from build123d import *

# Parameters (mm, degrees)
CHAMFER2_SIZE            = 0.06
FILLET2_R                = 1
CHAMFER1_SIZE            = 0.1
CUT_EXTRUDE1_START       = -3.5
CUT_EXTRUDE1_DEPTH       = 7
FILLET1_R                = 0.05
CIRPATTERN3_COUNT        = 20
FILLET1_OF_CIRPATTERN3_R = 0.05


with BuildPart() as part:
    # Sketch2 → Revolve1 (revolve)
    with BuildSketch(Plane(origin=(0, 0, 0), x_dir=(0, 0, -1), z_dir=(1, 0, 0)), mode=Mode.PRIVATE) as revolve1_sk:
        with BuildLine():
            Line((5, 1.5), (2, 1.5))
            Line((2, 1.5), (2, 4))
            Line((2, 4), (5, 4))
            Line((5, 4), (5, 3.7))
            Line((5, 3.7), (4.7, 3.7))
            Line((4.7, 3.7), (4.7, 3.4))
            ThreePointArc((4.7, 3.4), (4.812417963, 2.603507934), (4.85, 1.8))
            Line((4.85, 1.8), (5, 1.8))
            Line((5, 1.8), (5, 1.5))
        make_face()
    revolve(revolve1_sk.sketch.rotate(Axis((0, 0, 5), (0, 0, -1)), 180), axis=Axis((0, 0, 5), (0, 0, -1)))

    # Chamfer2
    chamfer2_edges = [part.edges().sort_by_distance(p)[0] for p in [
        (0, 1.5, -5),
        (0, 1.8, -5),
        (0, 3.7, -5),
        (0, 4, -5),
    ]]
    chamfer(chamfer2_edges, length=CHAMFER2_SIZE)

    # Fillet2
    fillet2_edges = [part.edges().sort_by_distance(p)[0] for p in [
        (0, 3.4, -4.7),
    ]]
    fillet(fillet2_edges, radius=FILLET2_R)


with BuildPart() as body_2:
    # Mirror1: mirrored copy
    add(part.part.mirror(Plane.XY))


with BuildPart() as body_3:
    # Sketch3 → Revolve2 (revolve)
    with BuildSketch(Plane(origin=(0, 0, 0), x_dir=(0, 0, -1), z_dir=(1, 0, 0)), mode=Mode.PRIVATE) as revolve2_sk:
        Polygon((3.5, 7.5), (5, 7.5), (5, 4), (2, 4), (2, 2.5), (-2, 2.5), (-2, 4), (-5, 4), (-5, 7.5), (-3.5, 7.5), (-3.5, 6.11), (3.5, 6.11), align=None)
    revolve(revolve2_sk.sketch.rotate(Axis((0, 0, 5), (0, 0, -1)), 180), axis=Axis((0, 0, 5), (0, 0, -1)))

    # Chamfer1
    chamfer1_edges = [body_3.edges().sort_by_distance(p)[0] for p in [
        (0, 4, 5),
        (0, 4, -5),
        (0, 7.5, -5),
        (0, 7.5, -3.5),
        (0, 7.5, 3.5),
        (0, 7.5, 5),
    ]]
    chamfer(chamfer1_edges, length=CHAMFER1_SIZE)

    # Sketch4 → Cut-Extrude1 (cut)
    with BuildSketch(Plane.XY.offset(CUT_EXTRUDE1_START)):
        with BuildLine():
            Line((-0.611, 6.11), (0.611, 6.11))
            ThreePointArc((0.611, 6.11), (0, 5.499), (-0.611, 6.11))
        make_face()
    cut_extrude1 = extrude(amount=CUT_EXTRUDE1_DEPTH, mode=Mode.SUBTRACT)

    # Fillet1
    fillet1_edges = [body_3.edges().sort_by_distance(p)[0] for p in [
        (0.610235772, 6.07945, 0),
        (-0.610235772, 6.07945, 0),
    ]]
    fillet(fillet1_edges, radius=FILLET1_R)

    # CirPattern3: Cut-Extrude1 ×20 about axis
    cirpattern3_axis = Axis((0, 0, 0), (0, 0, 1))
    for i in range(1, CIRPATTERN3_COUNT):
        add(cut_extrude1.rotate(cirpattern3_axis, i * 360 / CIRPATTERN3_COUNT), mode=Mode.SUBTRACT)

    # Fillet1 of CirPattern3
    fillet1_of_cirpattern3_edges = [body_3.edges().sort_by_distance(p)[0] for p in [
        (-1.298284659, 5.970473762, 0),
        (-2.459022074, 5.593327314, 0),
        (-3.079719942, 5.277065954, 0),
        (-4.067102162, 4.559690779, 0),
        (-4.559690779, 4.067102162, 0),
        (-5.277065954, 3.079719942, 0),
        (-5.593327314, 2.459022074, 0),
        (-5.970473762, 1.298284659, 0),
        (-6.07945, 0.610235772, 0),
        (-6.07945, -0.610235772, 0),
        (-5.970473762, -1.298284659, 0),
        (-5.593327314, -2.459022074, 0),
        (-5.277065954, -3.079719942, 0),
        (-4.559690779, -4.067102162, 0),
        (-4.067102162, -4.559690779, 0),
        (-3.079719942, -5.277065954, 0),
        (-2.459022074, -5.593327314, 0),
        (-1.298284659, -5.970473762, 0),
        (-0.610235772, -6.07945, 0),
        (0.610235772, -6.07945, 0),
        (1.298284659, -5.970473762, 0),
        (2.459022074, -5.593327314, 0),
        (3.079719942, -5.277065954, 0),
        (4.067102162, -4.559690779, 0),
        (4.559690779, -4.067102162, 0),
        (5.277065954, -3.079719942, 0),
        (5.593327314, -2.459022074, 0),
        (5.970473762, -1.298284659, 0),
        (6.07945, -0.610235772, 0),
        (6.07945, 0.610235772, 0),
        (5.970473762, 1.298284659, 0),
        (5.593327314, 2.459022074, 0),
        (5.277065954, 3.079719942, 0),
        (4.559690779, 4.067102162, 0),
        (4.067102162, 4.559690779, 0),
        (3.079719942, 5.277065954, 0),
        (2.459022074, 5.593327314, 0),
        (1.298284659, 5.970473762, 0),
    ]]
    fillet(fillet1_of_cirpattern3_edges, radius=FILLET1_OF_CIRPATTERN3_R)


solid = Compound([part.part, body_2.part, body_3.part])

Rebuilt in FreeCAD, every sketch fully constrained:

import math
import FreeCAD as App
import Part
import Sketcher
Q = App.Units.Quantity


def edges_at(feature, points):
    """Names of the edges that pass closest to the given points."""
    edges = feature.Shape.Edges
    near = lambda p: min(range(len(edges)), key=lambda i: edges[i].distToShape(Part.Vertex(*p))[0])
    return sorted({f"Edge{near(p) + 1}" for p in points})

doc = App.newDocument("Part")
body = doc.addObject("PartDesign::Body", "Body")

sketch1 = body.newObject("Sketcher::SketchObject", "Sketch")
sketch1.AttachmentSupport = (doc.getObject("YZ_Plane"), [""])
sketch1.MapMode = "FlatFace"
sketch1.addGeometry(Part.LineSegment(App.Vector(1.5, -2, 0), App.Vector(1.5, -5, 0)), False)
sketch1.addGeometry(Part.LineSegment(App.Vector(1.5, -5, 0), App.Vector(1.8, -5, 0)), False)
sketch1.addGeometry(Part.LineSegment(App.Vector(1.8, -5, 0), App.Vector(1.8, -4.85, 0)), False)
sketch1.addGeometry(Part.ArcOfCircle(Part.Circle(App.Vector(1.8, 3.76, 0), App.Vector(0, 0, 1), 8.61), math.radians(-90), math.radians(-79.29)), False)
sketch1.addGeometry(Part.LineSegment(App.Vector(3.4, -4.7, 0), App.Vector(3.7, -4.7, 0)), False)
sketch1.addGeometry(Part.LineSegment(App.Vector(3.7, -4.7, 0), App.Vector(3.7, -5, 0)), False)
sketch1.addGeometry(Part.LineSegment(App.Vector(3.7, -5, 0), App.Vector(4, -5, 0)), False)
sketch1.addGeometry(Part.LineSegment(App.Vector(4, -5, 0), App.Vector(4, -2, 0)), False)
sketch1.addGeometry(Part.LineSegment(App.Vector(4, -2, 0), App.Vector(1.5, -2, 0)), False)
sketch1.addConstraint(Sketcher.Constraint("Coincident", 0, 2, 1, 1))
sketch1.addConstraint(Sketcher.Constraint("Coincident", 1, 2, 2, 1))
sketch1.addConstraint(Sketcher.Constraint("Coincident", 2, 2, 3, 1))
sketch1.addConstraint(Sketcher.Constraint("Coincident", 3, 2, 4, 1))
sketch1.addConstraint(Sketcher.Constraint("Coincident", 4, 2, 5, 1))
sketch1.addConstraint(Sketcher.Constraint("Coincident", 5, 2, 6, 1))
sketch1.addConstraint(Sketcher.Constraint("Coincident", 6, 2, 7, 1))
sketch1.addConstraint(Sketcher.Constraint("Coincident", 7, 2, 8, 1))
sketch1.addConstraint(Sketcher.Constraint("Coincident", 8, 2, 0, 1))
sketch1.addConstraint(Sketcher.Constraint("Vertical", 0))
sketch1.addConstraint(Sketcher.Constraint("Horizontal", 1))
sketch1.addConstraint(Sketcher.Constraint("Vertical", 2))
sketch1.addConstraint(Sketcher.Constraint("Horizontal", 4))
sketch1.addConstraint(Sketcher.Constraint("Vertical", 5))
sketch1.addConstraint(Sketcher.Constraint("Horizontal", 6))
sketch1.addConstraint(Sketcher.Constraint("Vertical", 7))
sketch1.addConstraint(Sketcher.Constraint("Horizontal", 8))
sketch1.addConstraint(Sketcher.Constraint("Horizontal", 1, 2, 5, 2))
sketch1.addConstraint(Sketcher.Constraint("Vertical", 3, 3, 1, 2))
sketch1.addConstraint(Sketcher.Constraint("Equal", 1, 4))
sketch1.addConstraint(Sketcher.Constraint("Equal", 4, 6))
sketch1.addConstraint(Sketcher.Constraint("Equal", 6, 5))
sketch1.addConstraint(Sketcher.Constraint("DistanceY", 0, 2, 0, 1, Q("3 mm")))
sketch1.addConstraint(Sketcher.Constraint("DistanceX", 1, 1, 1, 2, Q("0.3 mm")))
sketch1.addConstraint(Sketcher.Constraint("DistanceX", 8, 2, 8, 1, Q("2.5 mm")))
sketch1.addConstraint(Sketcher.Constraint("DistanceY", 0, 2, -1, 1, Q("5 mm")))
sketch1.addConstraint(Sketcher.Constraint("DistanceX", -1, 1, 6, 2, Q("4 mm")))
sketch1.addConstraint(Sketcher.Constraint("DistanceY", 2, 1, 2, 2, Q("0.15 mm")))
revolution = body.newObject("PartDesign::Revolution", "Revolution")
revolution.Profile = sketch1
revolution.ReferenceAxis = (sketch1, ["V_Axis"])
revolution.Angle = 360
doc.recompute()

chamfer = body.newObject("PartDesign::Chamfer", "Chamfer")
chamfer.Base = (revolution, edges_at(revolution, [
    (0, 1.5, -5),
    (0, 1.8, -5),
    (0, 3.7, -5),
    (0, 4, -5),
]))
chamfer.Size = 0.06
doc.recompute()

fillet = body.newObject("PartDesign::Fillet", "Fillet")
fillet.Base = (chamfer, edges_at(chamfer, [(0, 3.4, -4.7)]))
fillet.Radius = 1
body2 = doc.addObject("PartDesign::Body", "Body001")
doc.recompute()

mirroring = doc.addObject("Part::Mirroring", "Mirroring")
mirroring.Source = body
mirroring.Base = App.Vector(0, 0, 0)
mirroring.Normal = App.Vector(0, 0, 1)
body2.BaseFeature = mirroring
doc.recompute()
body3 = doc.addObject("PartDesign::Body", "Body002")

sketch2 = body3.newObject("Sketcher::SketchObject", "Sketch001")
sketch2.AttachmentSupport = (doc.getObject("YZ_Plane002"), [""])
sketch2.MapMode = "FlatFace"
sketch2.addGeometry(Part.LineSegment(App.Vector(7.5, -5, 0), App.Vector(7.5, -3.5, 0)), False)
sketch2.addGeometry(Part.LineSegment(App.Vector(7.5, -3.5, 0), App.Vector(6.1, -3.5, 0)), False)
sketch2.addGeometry(Part.LineSegment(App.Vector(6.1, -3.5, 0), App.Vector(6.1, 3.5, 0)), False)
sketch2.addGeometry(Part.LineSegment(App.Vector(6.1, 3.5, 0), App.Vector(7.5, 3.5, 0)), False)
sketch2.addGeometry(Part.LineSegment(App.Vector(7.5, 3.5, 0), App.Vector(7.5, 5, 0)), False)
sketch2.addGeometry(Part.LineSegment(App.Vector(7.5, 5, 0), App.Vector(4, 5, 0)), False)
sketch2.addGeometry(Part.LineSegment(App.Vector(4, 5, 0), App.Vector(4, 2, 0)), False)
sketch2.addGeometry(Part.LineSegment(App.Vector(4, 2, 0), App.Vector(2.5, 2, 0)), False)
sketch2.addGeometry(Part.LineSegment(App.Vector(2.5, 2, 0), App.Vector(2.5, -2, 0)), False)
sketch2.addGeometry(Part.LineSegment(App.Vector(2.5, -2, 0), App.Vector(4, -2, 0)), False)
sketch2.addGeometry(Part.LineSegment(App.Vector(4, -2, 0), App.Vector(4, -5, 0)), False)
sketch2.addGeometry(Part.LineSegment(App.Vector(4, -5, 0), App.Vector(7.5, -5, 0)), False)
sketch2.addConstraint(Sketcher.Constraint("Coincident", 0, 2, 1, 1))
sketch2.addConstraint(Sketcher.Constraint("Coincident", 1, 2, 2, 1))
sketch2.addConstraint(Sketcher.Constraint("Coincident", 2, 2, 3, 1))
sketch2.addConstraint(Sketcher.Constraint("Coincident", 3, 2, 4, 1))
sketch2.addConstraint(Sketcher.Constraint("Coincident", 4, 2, 5, 1))
sketch2.addConstraint(Sketcher.Constraint("Coincident", 5, 2, 6, 1))
sketch2.addConstraint(Sketcher.Constraint("Coincident", 6, 2, 7, 1))
sketch2.addConstraint(Sketcher.Constraint("Coincident", 7, 2, 8, 1))
sketch2.addConstraint(Sketcher.Constraint("Coincident", 8, 2, 9, 1))
sketch2.addConstraint(Sketcher.Constraint("Coincident", 9, 2, 10, 1))
sketch2.addConstraint(Sketcher.Constraint("Coincident", 10, 2, 11, 1))
sketch2.addConstraint(Sketcher.Constraint("Coincident", 11, 2, 0, 1))
sketch2.addConstraint(Sketcher.Constraint("Vertical", 0))
sketch2.addConstraint(Sketcher.Constraint("Horizontal", 1))
sketch2.addConstraint(Sketcher.Constraint("Vertical", 2))
sketch2.addConstraint(Sketcher.Constraint("Horizontal", 3))
sketch2.addConstraint(Sketcher.Constraint("Vertical", 4))
sketch2.addConstraint(Sketcher.Constraint("Horizontal", 5))
sketch2.addConstraint(Sketcher.Constraint("Vertical", 6))
sketch2.addConstraint(Sketcher.Constraint("Horizontal", 7))
sketch2.addConstraint(Sketcher.Constraint("Vertical", 8))
sketch2.addConstraint(Sketcher.Constraint("Horizontal", 9))
sketch2.addConstraint(Sketcher.Constraint("Vertical", 10))
sketch2.addConstraint(Sketcher.Constraint("Horizontal", 11))
sketch2.addConstraint(Sketcher.Constraint("Symmetric", 0, 2, 3, 2, -1))
sketch2.addConstraint(Sketcher.Constraint("Symmetric", 6, 2, 9, 2, -1))
sketch2.addConstraint(Sketcher.Constraint("Equal", 9, 0))
sketch2.addConstraint(Sketcher.Constraint("Equal", 0, 4))
sketch2.addConstraint(Sketcher.Constraint("DistanceY", 2, 1, 2, 2, Q("7 mm")))
sketch2.addConstraint(Sketcher.Constraint("DistanceY", 6, 2, 6, 1, Q("3 mm")))
sketch2.addConstraint(Sketcher.Constraint("DistanceY", 8, 2, 8, 1, Q("4 mm")))
sketch2.addConstraint(Sketcher.Constraint("DistanceX", 5, 2, 5, 1, Q("3.5 mm")))
sketch2.addConstraint(Sketcher.Constraint("DistanceX", -1, 1, 5, 2, Q("4 mm")))
sketch2.addConstraint(Sketcher.Constraint("DistanceX", 1, 2, 1, 1, Q("1.39 mm")))
revolution2 = body3.newObject("PartDesign::Revolution", "Revolution001")
revolution2.Profile = sketch2
revolution2.ReferenceAxis = (sketch2, ["V_Axis"])
revolution2.Angle = 360
doc.recompute()

chamfer2 = body3.newObject("PartDesign::Chamfer", "Chamfer001")
chamfer2.Base = (revolution2, edges_at(revolution2, [
    (0, 4, 5),
    (0, 4, -5),
    (0, 7.5, -5),
    (0, 7.5, -3.5),
    (0, 7.5, 3.5),
    (0, 7.5, 5),
]))
chamfer2.Size = 0.1

sketch3 = body3.newObject("Sketcher::SketchObject", "Sketch002")
sketch3.AttachmentSupport = (doc.getObject("XY_Plane002"), [""])
sketch3.MapMode = "FlatFace"
sketch3.AttachmentOffset = App.Placement(App.Vector(0, 0, -3.5), App.Rotation())
sketch3.addGeometry(Part.LineSegment(App.Vector(0.6, 6.1, 0), App.Vector(-0.6, 6.1, 0)), False)
sketch3.addGeometry(Part.ArcOfCircle(Part.Circle(App.Vector(0, 6.1, 0), App.Vector(0, 0, 1), 0.6), math.radians(180), math.radians(360)), False)
sketch3.addConstraint(Sketcher.Constraint("Coincident", 0, 1, 1, 2))
sketch3.addConstraint(Sketcher.Constraint("Coincident", 1, 1, 0, 2))
sketch3.addConstraint(Sketcher.Constraint("Horizontal", 0))
sketch3.addConstraint(Sketcher.Constraint("PointOnObject", 1, 3, -2))
sketch3.addConstraint(Sketcher.Constraint("Horizontal", 1, 3, 0, 1))
sketch3.addConstraint(Sketcher.Constraint("Radius", 1, Q("0.611 mm")))
sketch3.addConstraint(Sketcher.Constraint("DistanceY", -1, 1, 1, 3, Q("6.11 mm")))
pocket1 = body3.newObject("PartDesign::Pocket", "Pocket")
pocket1.Profile = sketch3
pocket1.Length = 7
pocket1.Reversed = True
doc.recompute()

fillet2 = body3.newObject("PartDesign::Fillet", "Fillet001")
fillet2.Base = (pocket1, edges_at(pocket1, [(0.61, 6.079, 0), (-0.61, 6.079, 0)]))
fillet2.Radius = 0.05
doc.recompute()

polarpattern = body3.newObject("PartDesign::PolarPattern", "PolarPattern")
polarpattern.Originals = [pocket1]
polarpattern.Axis = (doc.getObject("Z_Axis002"), [""])
polarpattern.Angle = 360
polarpattern.Occurrences = 20
body3.Tip = polarpattern
doc.recompute()

fillet3 = body3.newObject("PartDesign::Fillet", "Fillet002")
fillet3.Base = (polarpattern, edges_at(polarpattern, [
    (-1.298, 5.97, 0),
    (-2.459, 5.593, 0),
    (-3.08, 5.277, 0),
    (-4.067, 4.56, 0),
    (-4.56, 4.067, 0),
    (-5.277, 3.08, 0),
    (-5.593, 2.459, 0),
    (-5.97, 1.298, 0),
    (-6.079, 0.61, 0),
    (-6.079, -0.61, 0),
    (-5.97, -1.298, 0),
    (-5.593, -2.459, 0),
    (-5.277, -3.08, 0),
    (-4.56, -4.067, 0),
    (-4.067, -4.56, 0),
    (-3.08, -5.277, 0),
    (-2.459, -5.593, 0),
    (-1.298, -5.97, 0),
    (-0.61, -6.079, 0),
    (0.61, -6.079, 0),
    (1.298, -5.97, 0),
    (2.459, -5.593, 0),
    (3.08, -5.277, 0),
    (4.067, -4.56, 0),
    (4.56, -4.067, 0),
    (5.277, -3.08, 0),
    (5.593, -2.459, 0),
    (5.97, -1.298, 0),
    (6.079, -0.61, 0),
    (6.079, 0.61, 0),
    (5.97, 1.298, 0),
    (5.593, 2.459, 0),
    (5.277, 3.08, 0),
    (4.56, 4.067, 0),
    (4.067, 4.56, 0),
    (3.08, 5.277, 0),
    (2.459, 5.593, 0),
    (1.298, 5.97, 0),
]))
fillet3.Radius = 0.05
mirroring.Visibility = False

doc.recompute()
